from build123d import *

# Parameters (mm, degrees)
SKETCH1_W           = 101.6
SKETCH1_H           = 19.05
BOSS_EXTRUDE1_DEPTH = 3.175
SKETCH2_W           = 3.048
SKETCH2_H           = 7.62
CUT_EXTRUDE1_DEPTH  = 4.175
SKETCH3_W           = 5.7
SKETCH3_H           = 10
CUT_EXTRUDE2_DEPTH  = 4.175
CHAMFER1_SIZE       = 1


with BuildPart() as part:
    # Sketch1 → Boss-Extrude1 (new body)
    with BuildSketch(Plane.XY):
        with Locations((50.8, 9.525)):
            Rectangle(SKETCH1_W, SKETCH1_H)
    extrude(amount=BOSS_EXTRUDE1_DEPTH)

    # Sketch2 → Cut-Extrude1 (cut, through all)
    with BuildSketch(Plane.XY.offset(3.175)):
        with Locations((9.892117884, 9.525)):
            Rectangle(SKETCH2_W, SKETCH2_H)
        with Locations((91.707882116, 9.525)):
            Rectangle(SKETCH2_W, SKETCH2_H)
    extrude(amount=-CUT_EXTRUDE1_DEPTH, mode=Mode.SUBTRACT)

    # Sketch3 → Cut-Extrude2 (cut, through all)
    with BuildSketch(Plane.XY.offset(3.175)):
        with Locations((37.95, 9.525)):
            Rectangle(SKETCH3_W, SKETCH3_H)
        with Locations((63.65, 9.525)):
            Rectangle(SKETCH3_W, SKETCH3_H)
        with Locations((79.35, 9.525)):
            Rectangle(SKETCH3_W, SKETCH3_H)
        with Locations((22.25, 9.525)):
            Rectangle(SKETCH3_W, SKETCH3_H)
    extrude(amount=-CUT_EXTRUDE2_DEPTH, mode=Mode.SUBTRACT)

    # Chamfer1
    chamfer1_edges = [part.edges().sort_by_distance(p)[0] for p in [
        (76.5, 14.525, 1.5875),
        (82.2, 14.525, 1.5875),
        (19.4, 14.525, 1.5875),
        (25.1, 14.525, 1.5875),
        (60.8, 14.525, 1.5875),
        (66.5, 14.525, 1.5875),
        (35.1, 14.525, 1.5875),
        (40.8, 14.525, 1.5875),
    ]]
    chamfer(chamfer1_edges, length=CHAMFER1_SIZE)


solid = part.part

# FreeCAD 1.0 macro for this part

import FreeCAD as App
import Part
import Sketcher

V = App.Vector
Q = App.Units.Quantity


def edges_at(feature, points):
    """Names of the edges that pass closest to the given points."""
    edges = feature.Shape.Edges
    near = lambda p: min(range(len(edges)), key=lambda i: edges[i].distToShape(Part.Vertex(*p))[0])
    return sorted({f"Edge{near(p) + 1}" for p in points})


def add_polygon(sketch, points):
    """Adds a closed chain of lines whose ends are joined by coincident constraints."""
    first, n = sketch.GeometryCount, len(points)
    for a, b in zip(points, points[1:] + points[:1]):
        sketch.addGeometry(Part.LineSegment(App.Vector(*a, 0), App.Vector(*b, 0)), False)
    for i in range(n):
        sketch.addConstraint(Sketcher.Constraint("Coincident", first + i, 2, first + (i + 1) % n, 1))

doc = App.newDocument("Part")
body = doc.addObject("PartDesign::Body", "Body")

sketch1 = doc.addObject("Sketcher::SketchObject", "Sketch")
body.addObject(sketch1)
sketch1.AttachmentSupport = (doc.XY_Plane, [""])
sketch1.MapMode = "FlatFace"
add_polygon(sketch1, [(0, 19), (0, 0), (102, 0), (102, 19)])
sketch1.addConstraint([
    Sketcher.Constraint("Vertical", 0),
    Sketcher.Constraint("Horizontal", 1),
    Sketcher.Constraint("Vertical", 2),
    Sketcher.Constraint("Horizontal", 3),
    Sketcher.Constraint("Coincident", 0, 2, -1, 1),
    Sketcher.Constraint("DistanceX", 1, 1, 1, 2, Q("4 in")),
    Sketcher.Constraint("DistanceY", 0, 2, 0, 1, Q("0.75 in")),
])
pad1 = doc.addObject("PartDesign::Pad", "Pad")
body.addObject(pad1)
pad1.Profile = sketch1
pad1.Length = Q("0.125 in")

sketch2 = doc.addObject("Sketcher::SketchObject", "Sketch001")
body.addObject(sketch2)
sketch2.AttachmentSupport = (doc.XY_Plane, [""])
sketch2.MapMode = "FlatFace"
sketch2.AttachmentOffset = App.Placement(V(0, 0, 0.125 * 25.4), App.Rotation())
add_polygon(sketch2, [(8.4, 13.3), (8.4, 5.7), (11.4, 5.7), (11.4, 13.3)])
add_polygon(sketch2, [(90.2, 13.3), (90.2, 5.7), (93.2, 5.7), (93.2, 13.3)])
sketch2.addConstraint([
    Sketcher.Constraint("Vertical", 0),
    Sketcher.Constraint("Horizontal", 1),
    Sketcher.Constraint("Vertical", 2),
    Sketcher.Constraint("Horizontal", 3),
    Sketcher.Constraint("Vertical", 4),
    Sketcher.Constraint("Horizontal", 5),
    Sketcher.Constraint("Vertical", 6),
    Sketcher.Constraint("Horizontal", 7),
    Sketcher.Constraint("Horizontal", 1, 2, 4, 2),
    Sketcher.Constraint("Horizontal", 3, 2, 6, 2),
    Sketcher.Constraint("Equal", 3, 5),
    Sketcher.Constraint("DistanceY", 0, 2, 0, 1, Q("0.3 in")),
    Sketcher.Constraint("DistanceX", 1, 1, 1, 2, Q("0.12 in")),
    Sketcher.Constraint("DistanceY", -1, 1, 0, 2, Q("0.225 in")),
    Sketcher.Constraint("DistanceX", -1, 1, 0, 2, 8.368118),
    Sketcher.Constraint("DistanceX", -1, 1, 4, 2, 90.183882),
])
pocket1 = doc.addObject("PartDesign::Pocket", "Pocket")
body.addObject(pocket1)
pocket1.Profile = sketch2
pocket1.Type = "ThroughAll"

sketch3 = doc.addObject("Sketcher::SketchObject", "Sketch002")
body.addObject(sketch3)
sketch3.AttachmentSupport = (doc.XY_Plane, [""])
sketch3.MapMode = "FlatFace"
sketch3.AttachmentOffset = App.Placement(V(0, 0, 0.125 * 25.4), App.Rotation())
add_polygon(sketch3, [(35, 15), (35, 5), (41, 5), (41, 15)])
add_polygon(sketch3, [(61, 15), (61, 5), (66, 5), (66, 15)])
add_polygon(sketch3, [(76, 15), (76, 5), (82, 5), (82, 15)])
add_polygon(sketch3, [(19, 15), (19, 5), (25, 5), (25, 15)])
sketch3.addConstraint([
    Sketcher.Constraint("Vertical", 0),
    Sketcher.Constraint("Horizontal", 1),
    Sketcher.Constraint("Vertical", 2),
    Sketcher.Constraint("Horizontal", 3),
    Sketcher.Constraint("Vertical", 4),
    Sketcher.Constraint("Horizontal", 5),
    Sketcher.Constraint("Vertical", 6),
    Sketcher.Constraint("Horizontal", 7),
    Sketcher.Constraint("Vertical", 8),
    Sketcher.Constraint("Horizontal", 9),
    Sketcher.Constraint("Vertical", 10),
    Sketcher.Constraint("Horizontal", 11),
    Sketcher.Constraint("Vertical", 12),
    Sketcher.Constraint("Horizontal", 13),
    Sketcher.Constraint("Vertical", 14),
    Sketcher.Constraint("Horizontal", 15),
    Sketcher.Constraint("Horizontal", 1, 2, 4, 2),
    Sketcher.Constraint("Horizontal", 3, 2, 6, 2),
    Sketcher.Constraint("Horizontal", 5, 2, 8, 2),
    Sketcher.Constraint("Horizontal", 7, 2, 10, 2),
    Sketcher.Constraint("Horizontal", 9, 2, 12, 2),
    Sketcher.Constraint("Horizontal", 11, 2, 14, 2),
    Sketcher.Constraint("Equal", 3, 5),
    Sketcher.Constraint("Equal", 7, 9),
    Sketcher.Constraint("Equal", 11, 13),
    Sketcher.Constraint("DistanceX", 1, 1, 1, 2, 5.7),
    Sketcher.Constraint("DistanceY", 0, 2, 0, 1, 10.0),
    Sketcher.Constraint("DistanceX", -1, 1, 0, 2, 35.1),
    Sketcher.Constraint("DistanceY", -1, 1, 0, 2, 4.525),
    Sketcher.Constraint("DistanceX", -1, 1, 4, 2, 60.8),
    Sketcher.Constraint("DistanceX", -1, 1, 8, 2, 76.5),
    Sketcher.Constraint("DistanceX", -1, 1, 12, 2, 19.4),
])
pocket2 = doc.addObject("PartDesign::Pocket", "Pocket001")
body.addObject(pocket2)
pocket2.Profile = sketch3
pocket2.Type = "ThroughAll"
doc.recompute()

chamfer = doc.addObject("PartDesign::Chamfer", "Chamfer")
body.addObject(chamfer)
chamfer.Base = (pocket2, edges_at(pocket2, [
    (76.5, 14.525, 1.587),
    (82.2, 14.525, 1.587),
    (19.4, 14.525, 1.587),
    (25.1, 14.525, 1.587),
    (60.8, 14.525, 1.587),
    (66.5, 14.525, 1.587),
    (35.1, 14.525, 1.587),
    (40.8, 14.525, 1.587),
]))
chamfer.Size = 1

doc.recompute()
